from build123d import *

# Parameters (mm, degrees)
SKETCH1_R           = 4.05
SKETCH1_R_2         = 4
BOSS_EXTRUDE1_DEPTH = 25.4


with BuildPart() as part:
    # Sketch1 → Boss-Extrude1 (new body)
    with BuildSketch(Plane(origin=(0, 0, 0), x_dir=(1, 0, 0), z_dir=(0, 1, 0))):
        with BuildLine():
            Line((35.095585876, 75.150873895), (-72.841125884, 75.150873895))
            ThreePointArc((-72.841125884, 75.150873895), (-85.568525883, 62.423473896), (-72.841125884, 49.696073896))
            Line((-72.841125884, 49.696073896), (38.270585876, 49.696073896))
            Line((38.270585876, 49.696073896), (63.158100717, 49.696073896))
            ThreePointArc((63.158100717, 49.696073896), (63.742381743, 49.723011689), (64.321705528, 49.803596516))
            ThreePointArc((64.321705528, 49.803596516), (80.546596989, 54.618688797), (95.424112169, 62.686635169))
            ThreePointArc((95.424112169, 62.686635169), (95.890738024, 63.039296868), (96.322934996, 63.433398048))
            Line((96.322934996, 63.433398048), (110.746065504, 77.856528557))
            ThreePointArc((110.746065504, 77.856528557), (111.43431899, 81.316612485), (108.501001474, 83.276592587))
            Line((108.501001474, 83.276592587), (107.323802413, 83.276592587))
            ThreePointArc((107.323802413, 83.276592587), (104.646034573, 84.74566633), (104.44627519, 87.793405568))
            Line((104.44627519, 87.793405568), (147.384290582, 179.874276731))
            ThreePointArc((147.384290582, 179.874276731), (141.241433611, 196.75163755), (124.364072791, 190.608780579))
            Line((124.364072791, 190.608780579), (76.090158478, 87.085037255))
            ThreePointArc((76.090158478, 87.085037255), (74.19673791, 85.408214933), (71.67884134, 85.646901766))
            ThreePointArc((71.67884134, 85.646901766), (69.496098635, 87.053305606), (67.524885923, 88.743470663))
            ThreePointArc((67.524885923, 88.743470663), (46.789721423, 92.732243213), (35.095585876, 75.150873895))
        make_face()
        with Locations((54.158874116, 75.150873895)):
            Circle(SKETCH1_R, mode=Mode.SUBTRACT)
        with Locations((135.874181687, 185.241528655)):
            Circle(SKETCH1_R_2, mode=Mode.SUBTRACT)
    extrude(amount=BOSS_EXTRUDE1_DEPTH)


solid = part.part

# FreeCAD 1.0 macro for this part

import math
import FreeCAD as App
import Part
import Sketcher
from FreeCAD import Vector
Q = App.Units.Quantity

doc = App.newDocument("Part")
body = doc.addObject("PartDesign::Body", "Body")

sketch1 = body.newObject("Sketcher::SketchObject", "Sketch")
sketch1.AttachmentSupport = (doc.getObject("XZ_Plane"), [""])
sketch1.MapMode = "FlatFace"
sketch1.addGeometry([
    Part.LineSegment(Vector(35.1, -75.2, 0), Vector(-72.8, -75.2, 0)),
    Part.ArcOfCircle(Part.Circle(Vector(-72.8, -62.4, 0), Vector(0, 0, 1), 12.7), math.radians(90), math.radians(270)),
    Part.LineSegment(Vector(-72.8, -49.7, 0), Vector(63.2, -49.7, 0)),
    Part.ArcOfCircle(Part.Circle(Vector(63.2, -56, 0), Vector(0, 0, 1), 6.4), math.radians(79.44), math.radians(90)),
    Part.ArcOfCircle(Part.Circle(Vector(49.4, -129.8, 0), Vector(0, 0, 1), 81.4), math.radians(56), math.radians(79)),
    Part.ArcOfCircle(Part.Circle(Vector(91.8, -67.9, 0), Vector(0, 0, 1), 6.4), math.radians(45), math.radians(55.56)),
    Part.LineSegment(Vector(96.3, -63.4, 0), Vector(110.7, -77.9, 0)),
    Part.ArcOfCircle(Part.Circle(Vector(108.5, -80.1, 0), Vector(0, 0, 1), 3.2), math.radians(-90), math.radians(45)),
    Part.LineSegment(Vector(108.5, -83.3, 0), Vector(107.3, -83.3, 0)),
    Part.ArcOfCircle(Part.Circle(Vector(107.3, -86.5, 0), Vector(0, 0, 1), 3.2), math.radians(90), math.radians(205)),
    Part.LineSegment(Vector(104.4, -87.8, 0), Vector(147.4, -179.9, 0)),
    Part.ArcOfCircle(Part.Circle(Vector(135.9, -185.2, 0), Vector(0, 0, 1), 12.7), math.radians(-155), math.radians(25)),
    Part.LineSegment(Vector(124.4, -190.6, 0), Vector(76.1, -87.1, 0)),
    Part.ArcOfCircle(Part.Circle(Vector(73.2, -88.4, 0), Vector(0, 0, 1), 3.2), math.radians(25), math.radians(119)),
    Part.ArcOfCircle(Part.Circle(Vector(80.9, -102.3, 0), Vector(0, 0, 1), 19.1), math.radians(118.89), math.radians(134.52)),
    Part.ArcOfCircle(Part.Circle(Vector(54.2, -75.2, 0), Vector(0, 0, 1), 19.1), math.radians(-180), math.radians(-45)),
    Part.Circle(Vector(54.2, -75.2, 0), Vector(0, 0, 1), 4),
    Part.Circle(Vector(135.9, -185.2, 0), Vector(0, 0, 1), 4),
], False)
sketch1.addConstraint([
    Sketcher.Constraint("Tangent", 0, 2, 1, 2),
    Sketcher.Constraint("Tangent", 1, 1, 2, 1),
    Sketcher.Constraint("Tangent", 2, 2, 3, 2),
    Sketcher.Constraint("Tangent", 3, 1, 4, 2),
    Sketcher.Constraint("Tangent", 4, 1, 5, 2),
    Sketcher.Constraint("Tangent", 5, 1, 6, 1),
    Sketcher.Constraint("Tangent", 6, 2, 7, 2),
    Sketcher.Constraint("Tangent", 7, 1, 8, 1),
    Sketcher.Constraint("Tangent", 8, 2, 9, 1),
    Sketcher.Constraint("Tangent", 9, 2, 10, 1),
    Sketcher.Constraint("Tangent", 10, 2, 11, 2),
    Sketcher.Constraint("Tangent", 11, 1, 12, 1),
    Sketcher.Constraint("Tangent", 12, 2, 13, 1),
    Sketcher.Constraint("Tangent", 13, 2, 14, 1),
    Sketcher.Constraint("Tangent", 14, 2, 15, 2),
    Sketcher.Constraint("Coincident", 15, 1, 0, 1),
    Sketcher.Constraint("Horizontal", 0),
    Sketcher.Constraint("Horizontal", 2),
    Sketcher.Constraint("Horizontal", 8),
    Sketcher.Constraint("Coincident", 16, 3, 15, 3),
    Sketcher.Constraint("Coincident", 17, 3, 11, 3),
    Sketcher.Constraint("Equal", 3, 5),
    Sketcher.Constraint("Equal", 7, 9),
    Sketcher.Constraint("Equal", 9, 13),
    Sketcher.Constraint("Parallel", 10, 12),
    Sketcher.Constraint("Horizontal", 16, 3, 0, 2),
    Sketcher.Constraint("Radius", 11, Q("0.5 in")),
    Sketcher.Constraint("Radius", 3, Q("0.25 in")),
    Sketcher.Constraint("Radius", 14, Q("0.75 in")),
    Sketcher.Constraint("Distance", 10, Q("4 in")),
    Sketcher.Constraint("Angle", 6, Q("-45 deg")),
    Sketcher.Constraint("Angle", 10, Q("-65 deg")),
    Sketcher.Constraint("Radius", 7, Q("0.125 in")),
    Sketcher.Constraint("DistanceX", 0, 2, 15, 3, Q("5 in")),
    Sketcher.Constraint("Diameter", 16, Q("8.1 mm")),
    Sketcher.Constraint("Diameter", 17, Q("8 mm")),
    Sketcher.Constraint("Radius", 1, Q("12.7274 mm")),
    Sketcher.Constraint("Radius", 15, Q("19.063288 mm")),
    Sketcher.Constraint("DistanceY", 14, 3, 9, 3, Q("0.625 in")),
    Sketcher.Constraint("DistanceX", 8, 2, 8, 1, Q("1.177199 mm")),
    Sketcher.Constraint("Radius", 4, Q("81.352823 mm")),
    Sketcher.Constraint("DistanceX", -1, 1, 3, 3, Q("63.158101 mm")),
    Sketcher.Constraint("DistanceX", -1, 1, 7, 3, Q("108.501001 mm")),
    Sketcher.Constraint("DistanceY", 5, 1, -1, 1, Q("63.433398 mm")),
    Sketcher.Constraint("DistanceY", 13, 2, -1, 1, Q("85.646902 mm")),
    Sketcher.Constraint("DistanceX", 14, 3, 17, 3, Q("54.992601 mm")),
    Sketcher.Constraint("DistanceX", 3, 1, 5, 3, Q("27.511101 mm")),
])
pad1 = body.newObject("PartDesign::Pad", "Pad")
pad1.Profile = sketch1
pad1.Length = Q("1 in")
pad1.Reversed = True

doc.recompute()
